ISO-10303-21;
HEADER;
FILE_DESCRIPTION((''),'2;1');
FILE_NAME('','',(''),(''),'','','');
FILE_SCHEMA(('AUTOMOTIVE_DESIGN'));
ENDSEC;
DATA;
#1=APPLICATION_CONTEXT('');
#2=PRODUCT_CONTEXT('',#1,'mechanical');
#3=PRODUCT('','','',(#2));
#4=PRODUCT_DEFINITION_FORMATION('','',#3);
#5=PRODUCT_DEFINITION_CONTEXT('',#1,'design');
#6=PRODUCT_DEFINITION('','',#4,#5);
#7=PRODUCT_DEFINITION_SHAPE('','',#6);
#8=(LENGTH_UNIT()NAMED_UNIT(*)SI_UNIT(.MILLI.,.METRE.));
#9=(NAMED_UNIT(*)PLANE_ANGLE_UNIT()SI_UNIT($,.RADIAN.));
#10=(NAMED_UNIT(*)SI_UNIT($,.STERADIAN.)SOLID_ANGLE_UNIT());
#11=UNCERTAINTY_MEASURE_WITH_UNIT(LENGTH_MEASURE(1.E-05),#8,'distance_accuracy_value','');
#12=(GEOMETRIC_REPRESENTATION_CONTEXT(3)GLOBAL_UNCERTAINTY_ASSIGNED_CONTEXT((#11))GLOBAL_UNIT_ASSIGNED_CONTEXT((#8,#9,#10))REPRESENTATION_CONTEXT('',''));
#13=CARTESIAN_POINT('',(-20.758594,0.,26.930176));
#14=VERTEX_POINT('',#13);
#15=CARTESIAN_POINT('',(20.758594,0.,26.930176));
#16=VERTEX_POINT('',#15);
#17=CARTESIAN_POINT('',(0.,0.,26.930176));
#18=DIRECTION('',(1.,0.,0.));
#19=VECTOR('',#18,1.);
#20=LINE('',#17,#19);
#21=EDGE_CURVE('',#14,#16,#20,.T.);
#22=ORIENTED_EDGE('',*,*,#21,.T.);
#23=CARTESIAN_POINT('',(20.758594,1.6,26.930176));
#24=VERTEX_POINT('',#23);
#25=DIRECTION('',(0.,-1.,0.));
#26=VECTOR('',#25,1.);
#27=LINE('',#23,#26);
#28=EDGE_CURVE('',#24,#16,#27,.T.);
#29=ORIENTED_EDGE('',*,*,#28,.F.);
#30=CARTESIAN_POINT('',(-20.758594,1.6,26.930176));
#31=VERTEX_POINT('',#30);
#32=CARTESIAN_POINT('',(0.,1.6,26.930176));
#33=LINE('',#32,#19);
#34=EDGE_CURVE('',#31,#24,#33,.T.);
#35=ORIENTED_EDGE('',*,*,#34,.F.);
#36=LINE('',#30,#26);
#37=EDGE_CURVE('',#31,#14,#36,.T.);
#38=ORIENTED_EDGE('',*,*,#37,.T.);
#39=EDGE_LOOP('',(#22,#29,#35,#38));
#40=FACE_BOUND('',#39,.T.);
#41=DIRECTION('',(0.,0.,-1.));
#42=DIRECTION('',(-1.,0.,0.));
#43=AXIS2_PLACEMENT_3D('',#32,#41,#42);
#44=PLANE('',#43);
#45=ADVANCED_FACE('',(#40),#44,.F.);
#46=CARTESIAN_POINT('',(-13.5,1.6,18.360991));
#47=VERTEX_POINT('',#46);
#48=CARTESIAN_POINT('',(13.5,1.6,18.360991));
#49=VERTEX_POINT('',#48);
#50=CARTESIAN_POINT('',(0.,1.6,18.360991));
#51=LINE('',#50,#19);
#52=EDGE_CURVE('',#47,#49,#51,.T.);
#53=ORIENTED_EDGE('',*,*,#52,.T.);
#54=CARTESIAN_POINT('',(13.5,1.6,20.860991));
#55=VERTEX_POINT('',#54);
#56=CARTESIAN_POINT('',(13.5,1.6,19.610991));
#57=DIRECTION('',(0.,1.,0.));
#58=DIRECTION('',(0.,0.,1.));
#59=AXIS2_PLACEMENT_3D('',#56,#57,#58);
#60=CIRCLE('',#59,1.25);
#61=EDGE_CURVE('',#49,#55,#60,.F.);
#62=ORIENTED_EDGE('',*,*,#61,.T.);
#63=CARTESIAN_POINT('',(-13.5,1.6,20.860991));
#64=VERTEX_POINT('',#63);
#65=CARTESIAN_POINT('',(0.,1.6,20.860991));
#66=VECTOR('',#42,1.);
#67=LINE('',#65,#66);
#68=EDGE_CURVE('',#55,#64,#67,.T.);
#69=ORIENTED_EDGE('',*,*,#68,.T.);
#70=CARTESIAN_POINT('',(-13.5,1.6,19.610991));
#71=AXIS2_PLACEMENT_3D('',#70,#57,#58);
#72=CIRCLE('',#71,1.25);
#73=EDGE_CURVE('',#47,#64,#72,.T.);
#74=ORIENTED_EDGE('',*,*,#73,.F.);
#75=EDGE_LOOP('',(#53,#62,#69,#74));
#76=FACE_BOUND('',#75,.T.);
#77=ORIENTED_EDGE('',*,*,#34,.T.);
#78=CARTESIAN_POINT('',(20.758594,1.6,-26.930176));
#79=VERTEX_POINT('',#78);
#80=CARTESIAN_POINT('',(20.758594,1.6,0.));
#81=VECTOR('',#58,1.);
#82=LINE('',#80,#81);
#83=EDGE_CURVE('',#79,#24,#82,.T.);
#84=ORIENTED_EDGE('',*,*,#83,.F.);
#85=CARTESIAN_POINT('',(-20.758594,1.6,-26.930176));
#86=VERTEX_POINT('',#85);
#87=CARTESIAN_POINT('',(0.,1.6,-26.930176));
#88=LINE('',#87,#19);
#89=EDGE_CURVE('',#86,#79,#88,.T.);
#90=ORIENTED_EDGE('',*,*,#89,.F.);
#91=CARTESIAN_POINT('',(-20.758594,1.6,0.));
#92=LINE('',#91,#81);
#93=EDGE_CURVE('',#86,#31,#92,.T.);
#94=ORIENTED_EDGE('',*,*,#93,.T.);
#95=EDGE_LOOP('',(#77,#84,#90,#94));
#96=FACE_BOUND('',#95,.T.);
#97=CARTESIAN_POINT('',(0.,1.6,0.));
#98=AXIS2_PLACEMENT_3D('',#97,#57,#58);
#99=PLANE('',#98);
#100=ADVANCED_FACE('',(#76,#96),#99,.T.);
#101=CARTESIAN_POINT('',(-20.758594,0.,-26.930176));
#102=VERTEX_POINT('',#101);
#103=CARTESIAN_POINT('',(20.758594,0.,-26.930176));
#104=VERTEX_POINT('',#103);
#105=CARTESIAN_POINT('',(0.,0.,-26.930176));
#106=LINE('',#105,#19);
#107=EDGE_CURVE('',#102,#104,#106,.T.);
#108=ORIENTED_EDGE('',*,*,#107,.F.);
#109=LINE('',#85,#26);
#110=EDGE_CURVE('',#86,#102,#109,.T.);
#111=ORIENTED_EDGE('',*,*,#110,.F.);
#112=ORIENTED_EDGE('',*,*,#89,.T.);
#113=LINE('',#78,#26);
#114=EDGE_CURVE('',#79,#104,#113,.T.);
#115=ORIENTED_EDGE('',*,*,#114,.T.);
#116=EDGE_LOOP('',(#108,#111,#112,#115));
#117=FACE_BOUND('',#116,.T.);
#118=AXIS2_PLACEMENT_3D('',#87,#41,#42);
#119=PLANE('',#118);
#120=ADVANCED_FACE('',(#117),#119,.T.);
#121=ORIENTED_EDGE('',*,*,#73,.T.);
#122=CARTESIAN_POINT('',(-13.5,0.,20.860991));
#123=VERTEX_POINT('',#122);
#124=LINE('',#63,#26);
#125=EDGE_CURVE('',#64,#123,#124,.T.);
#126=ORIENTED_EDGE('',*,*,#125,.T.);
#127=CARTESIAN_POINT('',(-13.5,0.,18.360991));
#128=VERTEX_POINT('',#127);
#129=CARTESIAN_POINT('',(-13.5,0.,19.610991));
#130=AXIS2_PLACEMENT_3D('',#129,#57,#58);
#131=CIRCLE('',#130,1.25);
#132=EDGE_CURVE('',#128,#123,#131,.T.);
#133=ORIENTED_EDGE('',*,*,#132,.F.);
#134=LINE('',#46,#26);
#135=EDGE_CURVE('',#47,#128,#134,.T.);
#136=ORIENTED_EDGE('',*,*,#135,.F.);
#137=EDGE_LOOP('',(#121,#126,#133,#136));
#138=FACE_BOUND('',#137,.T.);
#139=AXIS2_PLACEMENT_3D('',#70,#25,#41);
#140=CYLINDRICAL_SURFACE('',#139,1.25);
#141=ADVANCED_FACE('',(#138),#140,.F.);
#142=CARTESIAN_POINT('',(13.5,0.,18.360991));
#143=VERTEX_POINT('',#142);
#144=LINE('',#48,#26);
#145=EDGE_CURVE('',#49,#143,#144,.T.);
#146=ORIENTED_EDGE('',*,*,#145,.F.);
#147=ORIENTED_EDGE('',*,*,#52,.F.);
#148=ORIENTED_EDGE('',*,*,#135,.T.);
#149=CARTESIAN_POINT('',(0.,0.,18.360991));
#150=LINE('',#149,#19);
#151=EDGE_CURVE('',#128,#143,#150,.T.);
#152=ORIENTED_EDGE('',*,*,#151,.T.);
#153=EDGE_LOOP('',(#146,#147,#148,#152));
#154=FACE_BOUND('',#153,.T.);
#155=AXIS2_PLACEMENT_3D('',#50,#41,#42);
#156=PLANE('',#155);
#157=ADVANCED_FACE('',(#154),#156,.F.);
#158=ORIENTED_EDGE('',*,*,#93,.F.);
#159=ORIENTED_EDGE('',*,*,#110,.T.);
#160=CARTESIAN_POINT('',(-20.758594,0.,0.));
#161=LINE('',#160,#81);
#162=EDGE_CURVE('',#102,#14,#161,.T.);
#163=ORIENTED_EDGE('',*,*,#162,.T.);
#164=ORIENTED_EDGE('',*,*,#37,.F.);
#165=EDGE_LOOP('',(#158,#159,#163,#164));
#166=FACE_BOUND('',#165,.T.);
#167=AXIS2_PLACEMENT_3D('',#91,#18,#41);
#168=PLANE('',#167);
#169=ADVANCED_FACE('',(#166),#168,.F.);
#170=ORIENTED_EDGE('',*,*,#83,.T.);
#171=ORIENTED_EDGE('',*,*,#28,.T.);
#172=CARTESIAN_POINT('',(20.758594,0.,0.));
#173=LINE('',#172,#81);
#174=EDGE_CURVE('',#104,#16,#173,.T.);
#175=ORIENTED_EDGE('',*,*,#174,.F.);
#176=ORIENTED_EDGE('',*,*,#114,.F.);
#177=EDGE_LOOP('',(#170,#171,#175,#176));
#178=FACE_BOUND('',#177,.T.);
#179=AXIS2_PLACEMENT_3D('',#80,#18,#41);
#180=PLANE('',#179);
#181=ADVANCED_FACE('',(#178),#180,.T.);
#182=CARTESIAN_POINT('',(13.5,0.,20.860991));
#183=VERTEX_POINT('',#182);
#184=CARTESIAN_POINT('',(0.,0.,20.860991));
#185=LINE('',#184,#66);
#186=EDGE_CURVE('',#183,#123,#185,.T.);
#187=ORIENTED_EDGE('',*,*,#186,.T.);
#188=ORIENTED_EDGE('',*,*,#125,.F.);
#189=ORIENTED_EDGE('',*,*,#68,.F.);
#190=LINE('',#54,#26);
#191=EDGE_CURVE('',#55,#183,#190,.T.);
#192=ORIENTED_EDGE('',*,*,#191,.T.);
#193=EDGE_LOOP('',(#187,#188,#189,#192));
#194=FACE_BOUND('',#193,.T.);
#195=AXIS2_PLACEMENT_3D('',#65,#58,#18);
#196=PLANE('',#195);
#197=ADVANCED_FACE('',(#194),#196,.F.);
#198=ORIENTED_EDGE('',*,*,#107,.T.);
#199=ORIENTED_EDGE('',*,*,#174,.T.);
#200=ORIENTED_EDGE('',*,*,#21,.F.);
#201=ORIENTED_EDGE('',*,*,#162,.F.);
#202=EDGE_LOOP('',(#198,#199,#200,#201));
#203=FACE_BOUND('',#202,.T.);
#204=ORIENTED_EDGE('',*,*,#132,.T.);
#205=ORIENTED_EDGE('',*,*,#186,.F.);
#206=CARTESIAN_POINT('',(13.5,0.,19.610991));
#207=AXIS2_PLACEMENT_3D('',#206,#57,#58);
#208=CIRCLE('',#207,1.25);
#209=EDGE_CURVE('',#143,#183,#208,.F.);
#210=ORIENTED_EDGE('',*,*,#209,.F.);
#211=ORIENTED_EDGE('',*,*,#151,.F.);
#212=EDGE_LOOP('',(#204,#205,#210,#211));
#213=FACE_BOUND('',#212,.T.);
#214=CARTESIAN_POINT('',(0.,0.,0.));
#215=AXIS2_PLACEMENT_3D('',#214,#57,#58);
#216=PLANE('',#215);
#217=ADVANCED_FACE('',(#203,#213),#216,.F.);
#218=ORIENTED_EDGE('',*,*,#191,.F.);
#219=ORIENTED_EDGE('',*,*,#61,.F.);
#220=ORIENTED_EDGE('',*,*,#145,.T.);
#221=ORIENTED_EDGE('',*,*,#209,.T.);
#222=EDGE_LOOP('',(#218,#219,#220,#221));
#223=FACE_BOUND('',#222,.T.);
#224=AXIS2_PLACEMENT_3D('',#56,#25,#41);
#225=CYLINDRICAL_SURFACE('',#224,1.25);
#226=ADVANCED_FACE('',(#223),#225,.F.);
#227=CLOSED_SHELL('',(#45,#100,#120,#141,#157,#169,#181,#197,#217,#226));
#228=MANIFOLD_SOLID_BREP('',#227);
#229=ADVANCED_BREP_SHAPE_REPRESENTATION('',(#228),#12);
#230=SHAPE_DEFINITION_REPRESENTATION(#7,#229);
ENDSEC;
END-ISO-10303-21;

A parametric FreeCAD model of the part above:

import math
import FreeCAD as App
import Part
import Sketcher

doc = App.newDocument("Part")
body = doc.addObject("PartDesign::Body", "Body")

# Sketch on XZ plane
sketch1 = doc.addObject("Sketcher::SketchObject", "Sketch")
body.addObject(sketch1)
sketch1.AttachmentSupport = (doc.XZ_Plane, [""])
sketch1.MapMode = "FlatFace"
sketch1.addGeometry(Part.LineSegment(App.Vector(-20.758594, -26.930176, 0), App.Vector(-20.758594, 26.930176, 0)), False)
sketch1.addGeometry(Part.LineSegment(App.Vector(-20.758594, 26.930176, 0), App.Vector(20.758594, 26.930176, 0)), False)
sketch1.addGeometry(Part.LineSegment(App.Vector(20.758594, 26.930176, 0), App.Vector(20.758594, -26.930176, 0)), False)
sketch1.addGeometry(Part.LineSegment(App.Vector(20.758594, -26.930176, 0), App.Vector(-20.758594, -26.930176, 0)), False)
sketch1.addGeometry(Part.ArcOfCircle(Part.Circle(App.Vector(-13.5, 19.610991, 0), App.Vector(0, 0, 1), 1.25), math.radians(90), math.radians(270)), False)
sketch1.addGeometry(Part.LineSegment(App.Vector(-13.5, 18.360991, 0), App.Vector(13.5, 18.360991, 0)), False)
sketch1.addGeometry(Part.ArcOfCircle(Part.Circle(App.Vector(13.5, 19.610991, 0), App.Vector(0, 0, 1), 1.25), math.radians(-90), math.radians(90)), False)
sketch1.addGeometry(Part.LineSegment(App.Vector(13.5, 20.860991, 0), App.Vector(-13.5, 20.860991, 0)), False)
sketch1.addConstraint(Sketcher.Constraint("Coincident", 0, 2, 1, 1))
sketch1.addConstraint(Sketcher.Constraint("Coincident", 1, 2, 2, 1))
sketch1.addConstraint(Sketcher.Constraint("Coincident", 2, 2, 3, 1))
sketch1.addConstraint(Sketcher.Constraint("Coincident", 3, 2, 0, 1))
sketch1.addConstraint(Sketcher.Constraint("Tangent", 4, 2, 5, 1))
sketch1.addConstraint(Sketcher.Constraint("Tangent", 5, 2, 6, 1))
sketch1.addConstraint(Sketcher.Constraint("Tangent", 6, 2, 7, 1))
sketch1.addConstraint(Sketcher.Constraint("Tangent", 7, 2, 4, 1))
sketch1.addConstraint(Sketcher.Constraint("Vertical", 0))
sketch1.addConstraint(Sketcher.Constraint("Horizontal", 1))
sketch1.addConstraint(Sketcher.Constraint("Vertical", 2))
sketch1.addConstraint(Sketcher.Constraint("Horizontal", 3))
sketch1.addConstraint(Sketcher.Constraint("Horizontal", 5))
sketch1.addConstraint(Sketcher.Constraint("Horizontal", 7))
sketch1.addConstraint(Sketcher.Constraint("Symmetric", 0, 2, 2, 2, -1, 1))
sketch1.addConstraint(Sketcher.Constraint("DistanceX", 5, 1, 5, 2, 27.0))
sketch1.addConstraint(Sketcher.Constraint("Radius", 4, 1.25))
sketch1.addConstraint(Sketcher.Constraint("DistanceX", 4, 3, -1, 1, 13.5))
sketch1.addConstraint(Sketcher.Constraint("DistanceX", 1, 1, 1, 2, 41.517189))
sketch1.addConstraint(Sketcher.Constraint("DistanceY", 0, 1, 0, 2, 53.860351))
sketch1.addConstraint(Sketcher.Constraint("DistanceY", -1, 1, 4, 3, 19.610991))
pad1 = doc.addObject("PartDesign::Pad", "Pad")
body.addObject(pad1)
pad1.Profile = sketch1
pad1.Length = 1.6
pad1.Reversed = True

doc.recompute()
